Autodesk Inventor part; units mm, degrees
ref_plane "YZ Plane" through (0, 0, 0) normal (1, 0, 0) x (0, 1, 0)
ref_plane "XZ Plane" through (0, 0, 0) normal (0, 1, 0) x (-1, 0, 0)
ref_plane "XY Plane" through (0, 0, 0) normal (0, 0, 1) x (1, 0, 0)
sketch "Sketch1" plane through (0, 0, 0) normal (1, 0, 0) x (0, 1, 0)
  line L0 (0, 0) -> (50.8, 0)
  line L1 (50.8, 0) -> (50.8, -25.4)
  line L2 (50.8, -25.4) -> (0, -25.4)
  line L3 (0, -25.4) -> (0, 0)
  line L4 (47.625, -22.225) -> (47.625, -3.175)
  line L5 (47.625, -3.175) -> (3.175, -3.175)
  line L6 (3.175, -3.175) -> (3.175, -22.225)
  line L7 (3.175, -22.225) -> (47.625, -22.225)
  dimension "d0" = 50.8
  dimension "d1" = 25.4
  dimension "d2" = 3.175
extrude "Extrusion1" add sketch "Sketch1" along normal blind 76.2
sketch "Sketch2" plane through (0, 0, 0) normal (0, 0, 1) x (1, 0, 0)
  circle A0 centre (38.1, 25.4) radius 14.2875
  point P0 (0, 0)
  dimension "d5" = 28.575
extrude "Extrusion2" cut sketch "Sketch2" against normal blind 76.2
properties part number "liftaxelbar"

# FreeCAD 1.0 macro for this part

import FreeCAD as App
import Part
import Sketcher
from FreeCAD import Vector
Q = App.Units.Quantity


def add_polygon(sketch, points):
    """Adds a closed chain of lines whose ends are joined by coincident constraints."""
    first, n = sketch.GeometryCount, len(points)
    for a, b in zip(points, points[1:] + points[:1]):
        sketch.addGeometry(Part.LineSegment(App.Vector(*a, 0), App.Vector(*b, 0)), False)
    for i in range(n):
        sketch.addConstraint(Sketcher.Constraint("Coincident", first + i, 2, first + (i + 1) % n, 1))

doc = App.newDocument("Part")
params = doc.addObject("Spreadsheet::Sheet", "Params")
for row, (alias, value) in enumerate([
    ("sketch1_width", "2 in"),
    ("sketch1_height", "1 in"),
    ("pad1_length", "3 in"),
    ("sketch2_diameter", "1.125 in"),
    ("pocket1_length", "3 in"),
], start=1):
    params.set(f"A{row}", alias)
    params.set(f"B{row}", "=" + value)
    params.setAlias(f"B{row}", alias)

body = doc.addObject("PartDesign::Body", "Body")

sketch1 = body.newObject("Sketcher::SketchObject", "Sketch")
sketch1.AttachmentSupport = (doc.getObject("YZ_Plane"), [""])
sketch1.MapMode = "FlatFace"
add_polygon(sketch1, [(51, 0), (0, 0), (0, -25), (51, -25)])
add_polygon(sketch1, [(48, -3), (48, -22), (3, -22), (3, -3)])
sketch1.addConstraint([
    Sketcher.Constraint("Horizontal", 0),
    Sketcher.Constraint("Vertical", 1),
    Sketcher.Constraint("Horizontal", 2),
    Sketcher.Constraint("Vertical", 3),
    Sketcher.Constraint("Vertical", 4),
    Sketcher.Constraint("Horizontal", 5),
    Sketcher.Constraint("Vertical", 6),
    Sketcher.Constraint("Horizontal", 7),
    Sketcher.Constraint("Coincident", 0, 2, -1, 1),
    Sketcher.Constraint("DistanceX", 0, 2, 0, 1, Q("2 in")),
    Sketcher.Constraint("DistanceY", 1, 2, 1, 1, Q("1 in")),
    Sketcher.Constraint("DistanceX", -1, 1, 5, 2, Q("0.125 in")),
    Sketcher.Constraint("DistanceY", 6, 2, -1, 1, Q("0.125 in")),
    Sketcher.Constraint("DistanceX", 4, 2, 2, 2, Q("0.125 in")),
    Sketcher.Constraint("DistanceY", 2, 2, 4, 2, Q("0.125 in")),
])
sketch1.setExpression("Constraints[17]", "Params.sketch1_width")
sketch1.setExpression("Constraints[18]", "Params.sketch1_height")
pad1 = body.newObject("PartDesign::Pad", "Pad")
pad1.Profile = sketch1
pad1.setExpression("Length", "Params.pad1_length")

sketch2 = body.newObject("Sketcher::SketchObject", "Sketch001")
sketch2.AttachmentSupport = (doc.getObject("XY_Plane"), [""])
sketch2.MapMode = "FlatFace"
sketch2.addGeometry(Part.Circle(Vector(38, 25, 0), Vector(0, 0, 1), 14), False)
sketch2.addConstraint([
    Sketcher.Constraint("Diameter", 0, Q("1.125 in")),
    Sketcher.Constraint("DistanceY", -1, 1, 0, 3, Q("1 in")),
    Sketcher.Constraint("DistanceX", -1, 1, 0, 3, Q("1.5 in")),
])
sketch2.setExpression("Constraints[0]", "Params.sketch2_diameter")
pocket1 = body.newObject("PartDesign::Pocket", "Pocket")
pocket1.Profile = sketch2
pocket1.setExpression("Length", "Params.pocket1_length")

doc.recompute()
